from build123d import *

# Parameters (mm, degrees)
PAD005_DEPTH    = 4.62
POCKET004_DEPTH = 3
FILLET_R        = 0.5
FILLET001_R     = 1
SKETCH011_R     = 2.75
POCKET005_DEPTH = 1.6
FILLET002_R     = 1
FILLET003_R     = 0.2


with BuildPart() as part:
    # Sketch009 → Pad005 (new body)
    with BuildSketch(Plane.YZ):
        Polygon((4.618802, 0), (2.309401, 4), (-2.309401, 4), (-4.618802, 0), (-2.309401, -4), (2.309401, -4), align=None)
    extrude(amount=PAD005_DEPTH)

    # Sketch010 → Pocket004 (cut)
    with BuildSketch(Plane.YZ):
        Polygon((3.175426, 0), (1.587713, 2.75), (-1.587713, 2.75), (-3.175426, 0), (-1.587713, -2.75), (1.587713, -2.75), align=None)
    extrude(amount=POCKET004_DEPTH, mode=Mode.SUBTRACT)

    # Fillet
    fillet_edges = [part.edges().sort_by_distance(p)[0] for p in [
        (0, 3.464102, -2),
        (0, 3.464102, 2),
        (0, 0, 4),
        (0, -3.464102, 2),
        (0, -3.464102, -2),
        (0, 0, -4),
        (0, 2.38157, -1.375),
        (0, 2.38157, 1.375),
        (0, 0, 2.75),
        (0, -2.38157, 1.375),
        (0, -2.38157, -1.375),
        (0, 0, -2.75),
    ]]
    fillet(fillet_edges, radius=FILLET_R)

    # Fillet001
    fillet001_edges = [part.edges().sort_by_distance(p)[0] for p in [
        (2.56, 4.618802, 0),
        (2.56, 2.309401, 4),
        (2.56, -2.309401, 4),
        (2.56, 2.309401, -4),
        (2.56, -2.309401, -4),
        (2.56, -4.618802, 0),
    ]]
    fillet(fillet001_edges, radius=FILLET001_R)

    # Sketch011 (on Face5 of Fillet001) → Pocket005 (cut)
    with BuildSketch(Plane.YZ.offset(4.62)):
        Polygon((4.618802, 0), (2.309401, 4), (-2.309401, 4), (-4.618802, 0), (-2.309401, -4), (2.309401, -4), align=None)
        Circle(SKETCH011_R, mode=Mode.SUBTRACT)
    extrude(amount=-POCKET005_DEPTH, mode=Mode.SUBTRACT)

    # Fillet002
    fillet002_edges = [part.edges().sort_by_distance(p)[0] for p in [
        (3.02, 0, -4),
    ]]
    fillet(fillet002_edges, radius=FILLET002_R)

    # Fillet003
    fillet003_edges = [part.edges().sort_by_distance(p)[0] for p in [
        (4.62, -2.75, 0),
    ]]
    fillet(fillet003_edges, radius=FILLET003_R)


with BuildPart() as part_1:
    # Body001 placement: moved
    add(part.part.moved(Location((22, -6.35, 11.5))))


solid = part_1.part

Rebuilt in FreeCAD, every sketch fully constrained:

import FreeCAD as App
import Part
import Sketcher
Q = App.Units.Quantity


def edges_at(feature, points):
    """Names of the edges that pass closest to the given points."""
    edges = feature.Shape.Edges
    near = lambda p: min(range(len(edges)), key=lambda i: edges[i].distToShape(Part.Vertex(*p))[0])
    return sorted({f"Edge{near(p) + 1}" for p in points})

doc = App.newDocument("Part")
body = doc.addObject("PartDesign::Body", "Body")

# Sketch on YZ plane
sketch1 = body.newObject("Sketcher::SketchObject", "Sketch")
sketch1.AttachmentSupport = (doc.getObject("YZ_Plane"), [""])
sketch1.MapMode = "FlatFace"
sketch1.addGeometry([
    Part.LineSegment(App.Vector(4.6, 0, 0), App.Vector(2.3, 4, 0)),  # 0
    Part.LineSegment(App.Vector(2.3, 4, 0), App.Vector(-2.3, 4, 0)),  # 1
    Part.LineSegment(App.Vector(-2.3, 4, 0), App.Vector(-4.6, 0, 0)),  # 2
    Part.LineSegment(App.Vector(-4.6, 0, 0), App.Vector(-2.3, -4, 0)),  # 3
    Part.LineSegment(App.Vector(-2.3, -4, 0), App.Vector(2.3, -4, 0)),  # 4
    Part.LineSegment(App.Vector(2.3, -4, 0), App.Vector(4.6, 0, 0)),  # 5
], False)
sketch1.addConstraint([
    Sketcher.Constraint("Coincident", 0, 2, 1, 1),
    Sketcher.Constraint("Coincident", 1, 2, 2, 1),
    Sketcher.Constraint("Coincident", 2, 2, 3, 1),
    Sketcher.Constraint("Coincident", 3, 2, 4, 1),
    Sketcher.Constraint("Coincident", 4, 2, 5, 1),
    Sketcher.Constraint("Coincident", 5, 2, 0, 1),
    Sketcher.Constraint("Horizontal", 1),
    Sketcher.Constraint("Horizontal", 4),
    Sketcher.Constraint("Symmetric", 0, 2, 3, 2, -1, 1),
    Sketcher.Constraint("Symmetric", 2, 2, 5, 2, -1, 1),
    Sketcher.Constraint("PointOnObject", 2, 2, -1),
    Sketcher.Constraint("Parallel", 2, 5),
    Sketcher.Constraint("Vertical", 1, 2, 3, 2),
    Sketcher.Constraint("Angle", 0, Q("119.999999 deg")),
    Sketcher.Constraint("DistanceY", -1, 1, 0, 2, Q("4 mm")),
    Sketcher.Constraint("DistanceX", 1, 2, 1, 1, Q("4.618802 mm")),
])
pad1 = body.newObject("PartDesign::Pad", "Pad")
pad1.Profile = sketch1
pad1.Length = 4.62

# Sketch on YZ plane
sketch2 = body.newObject("Sketcher::SketchObject", "Sketch001")
sketch2.AttachmentSupport = (doc.getObject("YZ_Plane"), [""])
sketch2.MapMode = "FlatFace"
sketch2.addGeometry([
    Part.LineSegment(App.Vector(3.2, 0, 0), App.Vector(1.6, 2.8, 0)),  # 0
    Part.LineSegment(App.Vector(1.6, 2.8, 0), App.Vector(-1.6, 2.8, 0)),  # 1
    Part.LineSegment(App.Vector(-1.6, 2.8, 0), App.Vector(-3.2, 0, 0)),  # 2
    Part.LineSegment(App.Vector(-3.2, 0, 0), App.Vector(-1.6, -2.8, 0)),  # 3
    Part.LineSegment(App.Vector(-1.6, -2.8, 0), App.Vector(1.6, -2.8, 0)),  # 4
    Part.LineSegment(App.Vector(1.6, -2.8, 0), App.Vector(3.2, 0, 0)),  # 5
], False)
sketch2.addConstraint([
    Sketcher.Constraint("Coincident", 0, 2, 1, 1),
    Sketcher.Constraint("Coincident", 1, 2, 2, 1),
    Sketcher.Constraint("Coincident", 2, 2, 3, 1),
    Sketcher.Constraint("Coincident", 3, 2, 4, 1),
    Sketcher.Constraint("Coincident", 4, 2, 5, 1),
    Sketcher.Constraint("Coincident", 5, 2, 0, 1),
    Sketcher.Constraint("Horizontal", 1),
    Sketcher.Constraint("Horizontal", 4),
    Sketcher.Constraint("Symmetric", 0, 2, 3, 2, -1, 1),
    Sketcher.Constraint("Symmetric", 2, 2, 5, 2, -1, 1),
    Sketcher.Constraint("PointOnObject", 2, 2, -1),
    Sketcher.Constraint("Parallel", 2, 5),
    Sketcher.Constraint("Vertical", 1, 2, 3, 2),
    Sketcher.Constraint("Angle", 0, Q("119.999996 deg")),
    Sketcher.Constraint("DistanceY", 3, 2, 1, 2, Q("5.5 mm")),
    Sketcher.Constraint("DistanceX", 1, 2, 1, 1, Q("3.175426 mm")),
])
pocket1 = body.newObject("PartDesign::Pocket", "Pocket")
pocket1.Profile = sketch2
pocket1.Length = 3
pocket1.Reversed = True
doc.recompute()

fillet = body.newObject("PartDesign::Fillet", "Fillet")
fillet.Base = (pocket1, edges_at(pocket1, [
    (0, 3.464, -2),
    (0, 3.464, 2),
    (0, 0, 4),
    (0, -3.464, 2),
    (0, -3.464, -2),
    (0, 0, -4),
    (0, 2.382, -1.375),
    (0, 2.382, 1.375),
    (0, 0, 2.75),
    (0, -2.382, 1.375),
    (0, -2.382, -1.375),
    (0, 0, -2.75),
]))
fillet.Radius = 0.5
doc.recompute()

fillet2 = body.newObject("PartDesign::Fillet", "Fillet001")
fillet2.Base = (fillet, edges_at(fillet, [
    (2.56, 4.619, 0),
    (2.56, 2.309, 4),
    (2.56, -2.309, 4),
    (2.56, 2.309, -4),
    (2.56, -2.309, -4),
    (2.56, -4.619, 0),
]))
fillet2.Radius = 1

# Sketch on YZ plane
sketch3 = body.newObject("Sketcher::SketchObject", "Sketch002")
sketch3.AttachmentSupport = (doc.getObject("YZ_Plane"), [""])
sketch3.MapMode = "FlatFace"
sketch3.AttachmentOffset = App.Placement(App.Vector(0, 0, 4.62), App.Rotation())
sketch3.addGeometry([
    Part.LineSegment(App.Vector(4.6, 0, 0), App.Vector(2.3, 4, 0)),  # 0
    Part.LineSegment(App.Vector(2.3, 4, 0), App.Vector(-2.3, 4, 0)),  # 1
    Part.LineSegment(App.Vector(-2.3, 4, 0), App.Vector(-4.6, 0, 0)),  # 2
    Part.LineSegment(App.Vector(-4.6, 0, 0), App.Vector(-2.3, -4, 0)),  # 3
    Part.LineSegment(App.Vector(-2.3, -4, 0), App.Vector(2.3, -4, 0)),  # 4
    Part.LineSegment(App.Vector(2.3, -4, 0), App.Vector(4.6, 0, 0)),  # 5
    Part.Circle(App.Vector(0, 0, 0), App.Vector(0, 0, 1), 2.8),  # 6
], False)
sketch3.addConstraint([
    Sketcher.Constraint("Coincident", 0, 2, 1, 1),
    Sketcher.Constraint("Coincident", 1, 2, 2, 1),
    Sketcher.Constraint("Coincident", 2, 2, 3, 1),
    Sketcher.Constraint("Coincident", 3, 2, 4, 1),
    Sketcher.Constraint("Coincident", 4, 2, 5, 1),
    Sketcher.Constraint("Coincident", 5, 2, 0, 1),
    Sketcher.Constraint("Horizontal", 1),
    Sketcher.Constraint("Horizontal", 4),
    Sketcher.Constraint("Coincident", 6, 3, -1, 1),
    Sketcher.Constraint("Symmetric", 0, 2, 3, 2, -1, 1),
    Sketcher.Constraint("Symmetric", 2, 2, 5, 2, -1, 1),
    Sketcher.Constraint("PointOnObject", 2, 2, -1),
    Sketcher.Constraint("Parallel", 2, 5),
    Sketcher.Constraint("Vertical", 1, 2, 3, 2),
    Sketcher.Constraint("Diameter", 6, Q("5.5 mm")),
    Sketcher.Constraint("Angle", 0, Q("119.999999 deg")),
    Sketcher.Constraint("DistanceY", -1, 1, 0, 2, Q("4 mm")),
    Sketcher.Constraint("DistanceX", 1, 2, 1, 1, Q("4.618802 mm")),
])
pocket2 = body.newObject("PartDesign::Pocket", "Pocket001")
pocket2.Profile = sketch3
pocket2.Length = 1.6
doc.recompute()

fillet3 = body.newObject("PartDesign::Fillet", "Fillet002")
fillet3.Base = (pocket2, edges_at(pocket2, [(3.02, 0, -4)]))
fillet3.Radius = 1
doc.recompute()

fillet4 = body.newObject("PartDesign::Fillet", "Fillet003")
fillet4.Base = (fillet3, edges_at(fillet3, [(4.62, -2.75, 0)]))
fillet4.Radius = 0.2
body2 = doc.addObject("PartDesign::Body", "Body001")
doc.recompute()

body.Placement = App.Placement(App.Vector(22, -6.35, 11.5), App.Rotation(App.Vector(0, 0, 1), 0))
boolean = body2.newObject("PartDesign::Boolean", "Boolean")
boolean.Type = "Fuse"
boolean.addObjects([body])

doc.recompute()
